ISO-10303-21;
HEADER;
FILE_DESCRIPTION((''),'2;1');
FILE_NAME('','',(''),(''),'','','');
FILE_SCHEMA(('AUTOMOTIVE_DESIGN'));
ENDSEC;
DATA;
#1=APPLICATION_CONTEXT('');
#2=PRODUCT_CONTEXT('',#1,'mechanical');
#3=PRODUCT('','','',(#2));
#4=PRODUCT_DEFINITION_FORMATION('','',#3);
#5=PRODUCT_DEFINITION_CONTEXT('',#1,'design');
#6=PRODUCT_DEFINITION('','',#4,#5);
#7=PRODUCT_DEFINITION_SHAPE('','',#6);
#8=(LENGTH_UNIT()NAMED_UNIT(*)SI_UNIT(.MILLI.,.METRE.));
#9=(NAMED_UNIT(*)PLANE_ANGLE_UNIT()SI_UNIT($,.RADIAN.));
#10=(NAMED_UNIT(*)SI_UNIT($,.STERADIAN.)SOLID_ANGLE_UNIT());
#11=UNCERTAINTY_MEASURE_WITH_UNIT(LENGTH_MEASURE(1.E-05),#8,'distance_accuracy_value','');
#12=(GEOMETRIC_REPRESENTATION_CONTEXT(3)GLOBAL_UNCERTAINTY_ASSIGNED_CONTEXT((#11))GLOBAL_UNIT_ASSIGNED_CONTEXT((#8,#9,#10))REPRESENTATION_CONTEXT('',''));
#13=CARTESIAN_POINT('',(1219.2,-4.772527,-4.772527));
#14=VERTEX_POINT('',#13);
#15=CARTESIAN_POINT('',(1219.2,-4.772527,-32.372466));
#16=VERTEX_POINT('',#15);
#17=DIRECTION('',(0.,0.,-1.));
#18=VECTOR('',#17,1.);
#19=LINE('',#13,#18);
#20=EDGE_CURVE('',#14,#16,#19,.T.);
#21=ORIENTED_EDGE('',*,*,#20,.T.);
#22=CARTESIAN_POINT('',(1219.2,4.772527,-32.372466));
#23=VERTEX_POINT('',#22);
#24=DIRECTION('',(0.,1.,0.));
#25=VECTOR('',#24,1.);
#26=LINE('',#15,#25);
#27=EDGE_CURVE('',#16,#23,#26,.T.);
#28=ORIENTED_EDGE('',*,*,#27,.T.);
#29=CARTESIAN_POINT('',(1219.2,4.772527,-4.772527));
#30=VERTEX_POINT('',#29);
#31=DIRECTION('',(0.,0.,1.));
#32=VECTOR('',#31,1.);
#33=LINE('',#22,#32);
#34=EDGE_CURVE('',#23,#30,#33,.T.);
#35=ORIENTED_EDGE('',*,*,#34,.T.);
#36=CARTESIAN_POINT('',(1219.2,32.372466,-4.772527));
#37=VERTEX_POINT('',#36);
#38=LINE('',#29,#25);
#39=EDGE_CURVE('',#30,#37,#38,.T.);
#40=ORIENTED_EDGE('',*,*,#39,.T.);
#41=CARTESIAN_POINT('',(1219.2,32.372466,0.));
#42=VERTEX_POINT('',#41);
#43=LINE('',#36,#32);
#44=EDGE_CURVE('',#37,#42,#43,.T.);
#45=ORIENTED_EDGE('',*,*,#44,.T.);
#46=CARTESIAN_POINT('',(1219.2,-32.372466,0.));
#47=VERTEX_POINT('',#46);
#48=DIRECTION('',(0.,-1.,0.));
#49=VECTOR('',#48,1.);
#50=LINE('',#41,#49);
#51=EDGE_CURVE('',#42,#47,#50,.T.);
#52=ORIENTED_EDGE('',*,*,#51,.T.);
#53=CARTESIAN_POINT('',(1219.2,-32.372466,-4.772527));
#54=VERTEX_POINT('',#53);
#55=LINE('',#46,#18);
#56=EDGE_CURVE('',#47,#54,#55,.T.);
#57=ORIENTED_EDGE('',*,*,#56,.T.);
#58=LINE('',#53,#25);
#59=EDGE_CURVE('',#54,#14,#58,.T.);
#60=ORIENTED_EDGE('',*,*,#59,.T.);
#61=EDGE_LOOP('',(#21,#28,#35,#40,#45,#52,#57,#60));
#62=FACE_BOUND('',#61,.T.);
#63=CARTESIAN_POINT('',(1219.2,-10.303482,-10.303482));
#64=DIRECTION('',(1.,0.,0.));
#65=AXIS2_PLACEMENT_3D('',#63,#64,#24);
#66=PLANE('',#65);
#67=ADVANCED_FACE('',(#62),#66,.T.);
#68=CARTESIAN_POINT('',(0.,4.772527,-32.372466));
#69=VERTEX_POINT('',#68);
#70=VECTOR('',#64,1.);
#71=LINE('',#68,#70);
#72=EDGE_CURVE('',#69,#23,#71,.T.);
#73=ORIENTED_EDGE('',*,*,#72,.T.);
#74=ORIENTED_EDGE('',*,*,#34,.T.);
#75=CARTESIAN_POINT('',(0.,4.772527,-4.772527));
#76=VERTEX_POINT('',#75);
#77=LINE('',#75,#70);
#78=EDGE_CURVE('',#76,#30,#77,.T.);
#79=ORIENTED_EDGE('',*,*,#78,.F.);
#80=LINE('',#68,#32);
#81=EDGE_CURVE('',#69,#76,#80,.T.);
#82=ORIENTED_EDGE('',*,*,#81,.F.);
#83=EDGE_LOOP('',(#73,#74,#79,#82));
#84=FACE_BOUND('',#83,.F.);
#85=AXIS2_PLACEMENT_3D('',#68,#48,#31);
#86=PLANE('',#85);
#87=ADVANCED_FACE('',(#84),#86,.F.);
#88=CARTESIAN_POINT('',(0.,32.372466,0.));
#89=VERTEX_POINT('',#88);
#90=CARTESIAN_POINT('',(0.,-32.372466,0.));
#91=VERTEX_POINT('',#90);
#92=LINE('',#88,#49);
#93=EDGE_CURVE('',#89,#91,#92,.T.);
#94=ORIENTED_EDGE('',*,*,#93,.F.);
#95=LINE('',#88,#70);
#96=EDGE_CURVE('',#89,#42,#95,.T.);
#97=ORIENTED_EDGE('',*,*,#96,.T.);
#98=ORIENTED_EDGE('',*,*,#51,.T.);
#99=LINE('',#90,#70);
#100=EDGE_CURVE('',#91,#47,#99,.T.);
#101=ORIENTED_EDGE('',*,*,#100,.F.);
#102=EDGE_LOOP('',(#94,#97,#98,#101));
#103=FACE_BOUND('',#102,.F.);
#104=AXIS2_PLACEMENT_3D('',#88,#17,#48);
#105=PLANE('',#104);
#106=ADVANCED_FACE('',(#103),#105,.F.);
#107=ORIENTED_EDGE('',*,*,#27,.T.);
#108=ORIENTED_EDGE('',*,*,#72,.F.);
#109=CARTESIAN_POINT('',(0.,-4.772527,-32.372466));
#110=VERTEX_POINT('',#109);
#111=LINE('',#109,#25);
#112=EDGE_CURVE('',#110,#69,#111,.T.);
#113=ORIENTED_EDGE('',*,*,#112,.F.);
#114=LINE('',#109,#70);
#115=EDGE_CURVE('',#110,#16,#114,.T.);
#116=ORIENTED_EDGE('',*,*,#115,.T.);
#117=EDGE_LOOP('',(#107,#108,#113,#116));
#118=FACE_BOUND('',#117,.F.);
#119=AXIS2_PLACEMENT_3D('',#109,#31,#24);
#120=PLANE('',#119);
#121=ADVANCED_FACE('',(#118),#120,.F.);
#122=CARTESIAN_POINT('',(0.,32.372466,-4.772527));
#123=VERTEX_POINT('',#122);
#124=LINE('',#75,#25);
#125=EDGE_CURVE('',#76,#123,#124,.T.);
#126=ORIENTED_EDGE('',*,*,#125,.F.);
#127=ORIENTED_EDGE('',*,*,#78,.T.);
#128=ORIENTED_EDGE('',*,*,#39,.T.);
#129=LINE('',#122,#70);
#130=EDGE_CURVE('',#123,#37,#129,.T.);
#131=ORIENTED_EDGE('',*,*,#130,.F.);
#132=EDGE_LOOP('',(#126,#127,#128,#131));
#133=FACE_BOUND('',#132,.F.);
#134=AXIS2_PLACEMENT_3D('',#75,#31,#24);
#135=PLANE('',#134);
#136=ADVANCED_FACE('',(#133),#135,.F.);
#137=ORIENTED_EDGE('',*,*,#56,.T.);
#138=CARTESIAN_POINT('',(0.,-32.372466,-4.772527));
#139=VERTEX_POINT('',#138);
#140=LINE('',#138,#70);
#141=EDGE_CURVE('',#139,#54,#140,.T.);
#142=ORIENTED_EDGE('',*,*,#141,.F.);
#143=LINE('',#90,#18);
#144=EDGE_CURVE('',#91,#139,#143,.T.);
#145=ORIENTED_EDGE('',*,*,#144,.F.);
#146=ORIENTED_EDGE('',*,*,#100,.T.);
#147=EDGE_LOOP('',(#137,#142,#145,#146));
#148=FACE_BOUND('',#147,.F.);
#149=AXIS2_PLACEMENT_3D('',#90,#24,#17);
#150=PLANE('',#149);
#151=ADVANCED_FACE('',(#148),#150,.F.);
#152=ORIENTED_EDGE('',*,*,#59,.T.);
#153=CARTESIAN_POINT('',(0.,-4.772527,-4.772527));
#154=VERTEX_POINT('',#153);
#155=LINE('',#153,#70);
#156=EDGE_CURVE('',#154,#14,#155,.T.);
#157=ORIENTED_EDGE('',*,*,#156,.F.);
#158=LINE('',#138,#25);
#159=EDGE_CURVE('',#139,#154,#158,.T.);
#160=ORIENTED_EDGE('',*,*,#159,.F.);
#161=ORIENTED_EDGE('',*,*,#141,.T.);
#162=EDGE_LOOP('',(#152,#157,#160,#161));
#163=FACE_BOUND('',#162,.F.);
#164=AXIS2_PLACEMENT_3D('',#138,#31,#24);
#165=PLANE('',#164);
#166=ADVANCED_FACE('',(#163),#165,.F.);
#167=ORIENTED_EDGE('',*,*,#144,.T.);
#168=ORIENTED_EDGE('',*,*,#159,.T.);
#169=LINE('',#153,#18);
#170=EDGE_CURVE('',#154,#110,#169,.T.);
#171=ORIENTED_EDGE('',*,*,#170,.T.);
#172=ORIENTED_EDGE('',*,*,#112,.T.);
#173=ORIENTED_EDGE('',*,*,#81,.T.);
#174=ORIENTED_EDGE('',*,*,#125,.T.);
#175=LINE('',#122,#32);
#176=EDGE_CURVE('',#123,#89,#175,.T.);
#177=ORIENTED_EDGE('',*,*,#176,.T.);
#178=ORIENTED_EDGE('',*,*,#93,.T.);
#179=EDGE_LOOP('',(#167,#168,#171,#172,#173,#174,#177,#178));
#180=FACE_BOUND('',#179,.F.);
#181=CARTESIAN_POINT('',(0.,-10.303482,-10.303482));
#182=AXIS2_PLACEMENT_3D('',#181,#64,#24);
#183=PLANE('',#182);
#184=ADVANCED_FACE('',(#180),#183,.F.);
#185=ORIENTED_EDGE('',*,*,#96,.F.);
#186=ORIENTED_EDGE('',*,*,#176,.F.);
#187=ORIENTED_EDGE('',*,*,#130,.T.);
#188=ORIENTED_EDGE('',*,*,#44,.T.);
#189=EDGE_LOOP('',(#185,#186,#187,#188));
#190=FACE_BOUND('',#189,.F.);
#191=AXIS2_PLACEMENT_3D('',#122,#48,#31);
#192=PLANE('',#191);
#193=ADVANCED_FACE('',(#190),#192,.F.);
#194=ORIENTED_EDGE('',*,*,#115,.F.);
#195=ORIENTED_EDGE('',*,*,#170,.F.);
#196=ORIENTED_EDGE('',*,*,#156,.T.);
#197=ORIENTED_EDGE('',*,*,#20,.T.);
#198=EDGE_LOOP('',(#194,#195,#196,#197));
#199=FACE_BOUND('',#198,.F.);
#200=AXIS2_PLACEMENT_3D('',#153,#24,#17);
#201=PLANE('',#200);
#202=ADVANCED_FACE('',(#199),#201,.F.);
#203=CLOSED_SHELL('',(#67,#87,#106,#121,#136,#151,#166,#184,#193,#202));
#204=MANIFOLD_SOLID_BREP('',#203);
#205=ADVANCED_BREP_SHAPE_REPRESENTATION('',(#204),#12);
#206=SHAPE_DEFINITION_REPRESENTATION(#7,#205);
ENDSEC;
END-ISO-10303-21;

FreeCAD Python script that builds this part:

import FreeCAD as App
import Part
import Sketcher

doc = App.newDocument("Part")
params = doc.addObject("Spreadsheet::Sheet", "Params")
for row, (alias, value) in enumerate([
    ("pad1_length", "48 in"),
], start=1):
    params.set(f"A{row}", alias)
    params.set(f"B{row}", "=" + value)
    params.setAlias(f"B{row}", alias)

body = doc.addObject("PartDesign::Body", "Body")

# Sketch on YZ plane
sketch1 = body.newObject("Sketcher::SketchObject", "Sketch")
sketch1.AttachmentSupport = (doc.getObject("YZ_Plane"), [""])
sketch1.MapMode = "FlatFace"
sketch1.addGeometry([
    Part.LineSegment(App.Vector(-32.4, 0, 0), App.Vector(-32.4, -4.8, 0)),  # 0
    Part.LineSegment(App.Vector(-32.4, -4.8, 0), App.Vector(-4.8, -4.8, 0)),  # 1
    Part.LineSegment(App.Vector(-4.8, -4.8, 0), App.Vector(-4.8, -32.4, 0)),  # 2
    Part.LineSegment(App.Vector(-4.8, -32.4, 0), App.Vector(4.8, -32.4, 0)),  # 3
    Part.LineSegment(App.Vector(4.8, -32.4, 0), App.Vector(4.8, -4.8, 0)),  # 4
    Part.LineSegment(App.Vector(4.8, -4.8, 0), App.Vector(32.4, -4.8, 0)),  # 5
    Part.LineSegment(App.Vector(32.4, -4.8, 0), App.Vector(32.4, 0, 0)),  # 6
    Part.LineSegment(App.Vector(32.4, 0, 0), App.Vector(-32.4, 0, 0)),  # 7
], False)
sketch1.addConstraint([
    Sketcher.Constraint("Coincident", 0, 2, 1, 1),
    Sketcher.Constraint("Coincident", 1, 2, 2, 1),
    Sketcher.Constraint("Coincident", 2, 2, 3, 1),
    Sketcher.Constraint("Coincident", 3, 2, 4, 1),
    Sketcher.Constraint("Coincident", 4, 2, 5, 1),
    Sketcher.Constraint("Coincident", 5, 2, 6, 1),
    Sketcher.Constraint("Coincident", 6, 2, 7, 1),
    Sketcher.Constraint("Coincident", 7, 2, 0, 1),
    Sketcher.Constraint("Vertical", 0),
    Sketcher.Constraint("Horizontal", 1),
    Sketcher.Constraint("Vertical", 2),
    Sketcher.Constraint("Horizontal", 3),
    Sketcher.Constraint("Vertical", 4),
    Sketcher.Constraint("Horizontal", 5),
    Sketcher.Constraint("Vertical", 6),
    Sketcher.Constraint("Horizontal", 7),
    Sketcher.Constraint("Symmetric", 6, 2, 7, 2, -1, 1),
    Sketcher.Constraint("Symmetric", 1, 2, 4, 2, -2),
    Sketcher.Constraint("Equal", 5, 2),
    Sketcher.Constraint("DistanceX", 1, 1, 1, 2, 27.599939),
    Sketcher.Constraint("DistanceX", 3, 1, 3, 2, 9.545054),
    Sketcher.Constraint("DistanceY", 0, 2, 0, 1, 4.772527),
])
pad1 = body.newObject("PartDesign::Pad", "Pad")
pad1.Profile = sketch1
pad1.setExpression("Length", "Params.pad1_length")

doc.recompute()
